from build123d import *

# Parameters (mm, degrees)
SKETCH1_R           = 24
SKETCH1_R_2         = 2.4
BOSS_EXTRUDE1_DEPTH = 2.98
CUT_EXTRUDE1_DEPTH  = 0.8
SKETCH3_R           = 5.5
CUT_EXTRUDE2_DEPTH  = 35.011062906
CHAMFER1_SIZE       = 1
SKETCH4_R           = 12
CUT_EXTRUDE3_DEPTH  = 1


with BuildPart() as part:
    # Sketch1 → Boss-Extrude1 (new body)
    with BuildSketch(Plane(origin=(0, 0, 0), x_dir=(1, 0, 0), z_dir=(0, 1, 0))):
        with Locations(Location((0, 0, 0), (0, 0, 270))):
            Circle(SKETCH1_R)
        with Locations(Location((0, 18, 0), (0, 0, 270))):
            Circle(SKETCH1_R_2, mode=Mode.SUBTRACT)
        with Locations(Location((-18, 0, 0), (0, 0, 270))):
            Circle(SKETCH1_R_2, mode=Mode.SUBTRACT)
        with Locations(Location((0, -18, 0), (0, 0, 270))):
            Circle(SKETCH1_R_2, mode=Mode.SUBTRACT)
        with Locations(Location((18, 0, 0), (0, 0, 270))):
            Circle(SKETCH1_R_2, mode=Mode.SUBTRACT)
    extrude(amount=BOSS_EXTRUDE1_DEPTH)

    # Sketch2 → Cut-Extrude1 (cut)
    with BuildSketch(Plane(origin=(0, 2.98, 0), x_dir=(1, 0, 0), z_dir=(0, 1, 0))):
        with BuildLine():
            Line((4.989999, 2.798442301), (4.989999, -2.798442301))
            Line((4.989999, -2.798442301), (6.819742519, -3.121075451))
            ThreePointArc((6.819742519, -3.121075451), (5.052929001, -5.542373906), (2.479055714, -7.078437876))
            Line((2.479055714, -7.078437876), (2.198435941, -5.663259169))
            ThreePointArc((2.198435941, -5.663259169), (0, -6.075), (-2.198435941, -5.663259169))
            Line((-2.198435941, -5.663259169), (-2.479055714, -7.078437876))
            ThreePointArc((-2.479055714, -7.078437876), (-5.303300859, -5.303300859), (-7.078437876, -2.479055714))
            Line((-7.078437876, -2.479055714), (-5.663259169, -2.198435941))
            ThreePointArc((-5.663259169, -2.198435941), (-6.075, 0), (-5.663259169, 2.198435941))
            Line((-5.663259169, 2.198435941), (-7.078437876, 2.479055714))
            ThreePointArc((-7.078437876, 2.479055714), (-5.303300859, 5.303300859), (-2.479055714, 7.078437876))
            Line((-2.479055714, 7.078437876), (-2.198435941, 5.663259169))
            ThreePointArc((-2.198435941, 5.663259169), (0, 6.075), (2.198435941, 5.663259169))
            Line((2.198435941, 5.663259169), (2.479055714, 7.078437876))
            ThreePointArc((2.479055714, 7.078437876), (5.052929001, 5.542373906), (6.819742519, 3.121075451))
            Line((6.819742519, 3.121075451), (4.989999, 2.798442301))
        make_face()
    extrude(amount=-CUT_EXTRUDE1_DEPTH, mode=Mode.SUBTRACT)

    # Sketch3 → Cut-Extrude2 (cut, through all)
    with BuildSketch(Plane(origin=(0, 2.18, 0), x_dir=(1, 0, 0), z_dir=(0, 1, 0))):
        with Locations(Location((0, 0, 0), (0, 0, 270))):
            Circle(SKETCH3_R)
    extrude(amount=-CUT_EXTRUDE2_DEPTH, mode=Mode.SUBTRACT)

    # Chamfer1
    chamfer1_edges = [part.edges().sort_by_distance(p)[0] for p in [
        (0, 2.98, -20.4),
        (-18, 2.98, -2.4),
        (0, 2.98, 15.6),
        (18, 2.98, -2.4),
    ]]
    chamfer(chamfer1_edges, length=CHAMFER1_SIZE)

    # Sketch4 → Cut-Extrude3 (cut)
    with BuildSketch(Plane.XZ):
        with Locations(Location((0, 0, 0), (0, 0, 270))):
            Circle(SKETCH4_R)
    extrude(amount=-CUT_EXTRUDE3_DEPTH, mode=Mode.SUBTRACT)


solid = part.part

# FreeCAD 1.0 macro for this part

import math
import FreeCAD as App
import Part
import Sketcher
Q = App.Units.Quantity


def edges_at(feature, points):
    """Names of the edges that pass closest to the given points."""
    edges = feature.Shape.Edges
    near = lambda p: min(range(len(edges)), key=lambda i: edges[i].distToShape(Part.Vertex(*p))[0])
    return sorted({f"Edge{near(p) + 1}" for p in points})

doc = App.newDocument("Part")
body = doc.addObject("PartDesign::Body", "Body")

sketch1 = body.newObject("Sketcher::SketchObject", "Sketch")
sketch1.AttachmentSupport = (doc.getObject("XZ_Plane"), [""])
sketch1.MapMode = "FlatFace"
sketch1.addGeometry([
    Part.Circle(App.Vector(0, 0, 0), App.Vector(0, 0, 1), 24),
    Part.Circle(App.Vector(0, -18, 0), App.Vector(0, 0, 1), 2.4),
    Part.Circle(App.Vector(-18, 0, 0), App.Vector(0, 0, 1), 2.4),
    Part.Circle(App.Vector(18, 0, 0), App.Vector(0, 0, 1), 2.4),
    Part.Circle(App.Vector(0, 18, 0), App.Vector(0, 0, 1), 2.4),
], False)
sketch1.addConstraint([
    Sketcher.Constraint("Coincident", 0, 3, -1, 1),
    Sketcher.Constraint("Equal", 1, 2),
    Sketcher.Constraint("Equal", 2, 3),
    Sketcher.Constraint("Equal", 3, 4),
    Sketcher.Constraint("Symmetric", 2, 3, 3, 3, -1, 1),
    Sketcher.Constraint("Symmetric", 1, 3, 4, 3, -1, 1),
    Sketcher.Constraint("PointOnObject", 1, 3, -2),
    Sketcher.Constraint("PointOnObject", 2, 3, -1),
    Sketcher.Constraint("Diameter", 0, 48.0),
    Sketcher.Constraint("Diameter", 1, 4.8),
    Sketcher.Constraint("DistanceY", 1, 3, -1, 1, 18.0),
    Sketcher.Constraint("DistanceX", 2, 3, -1, 1, 18.0),
])
pad1 = body.newObject("PartDesign::Pad", "Pad")
pad1.Profile = sketch1
pad1.Length = 2.98
pad1.Reversed = True

sketch2 = body.newObject("Sketcher::SketchObject", "Sketch001")
sketch2.AttachmentSupport = (doc.getObject("XZ_Plane"), [""])
sketch2.MapMode = "FlatFace"
sketch2.AttachmentOffset = App.Placement(App.Vector(0, 0, -2.98), App.Rotation())
sketch2.addGeometry([
    Part.LineSegment(App.Vector(4.989999, 2.798442, 0), App.Vector(4.989999, -2.798442, 0)),
    Part.LineSegment(App.Vector(4.989999, -2.798442, 0), App.Vector(6.819743, -3.121075, 0)),
    Part.ArcOfCircle(Part.Circle(App.Vector(0, 0, 0), App.Vector(0, 0, 1), 7.5), math.radians(-70.698399), math.radians(-24.591342)),
    Part.LineSegment(App.Vector(2.479056, -7.078438, 0), App.Vector(2.198436, -5.663259, 0)),
    Part.ArcOfCircle(Part.Circle(App.Vector(0, 0, 0), App.Vector(0, 0, 1), 6.075), math.radians(-111.215849), math.radians(-68.784151)),
    Part.LineSegment(App.Vector(-2.198436, -5.663259, 0), App.Vector(-2.479056, -7.078438, 0)),
    Part.ArcOfCircle(Part.Circle(App.Vector(0, 0, 0), App.Vector(0, 0, 1), 7.5), math.radians(-160.698399), math.radians(-109.301601)),
    Part.LineSegment(App.Vector(-7.078438, -2.479056, 0), App.Vector(-5.663259, -2.198436, 0)),
    Part.ArcOfCircle(Part.Circle(App.Vector(0, 0, 0), App.Vector(0, 0, 1), 6.075), math.radians(158.784151), math.radians(201.215849)),
    Part.LineSegment(App.Vector(-5.663259, 2.198436, 0), App.Vector(-7.078438, 2.479056, 0)),
    Part.ArcOfCircle(Part.Circle(App.Vector(0, 0, 0), App.Vector(0, 0, 1), 7.5), math.radians(109.301601), math.radians(160.698399)),
    Part.LineSegment(App.Vector(-2.479056, 7.078438, 0), App.Vector(-2.198436, 5.663259, 0)),
    Part.ArcOfCircle(Part.Circle(App.Vector(0, 0, 0), App.Vector(0, 0, 1), 6.075), math.radians(68.784151), math.radians(111.215849)),
    Part.LineSegment(App.Vector(2.198436, 5.663259, 0), App.Vector(2.479056, 7.078438, 0)),
    Part.ArcOfCircle(Part.Circle(App.Vector(0, 0, 0), App.Vector(0, 0, 1), 7.5), math.radians(24.591342), math.radians(70.698399)),
    Part.LineSegment(App.Vector(6.819743, 3.121075, 0), App.Vector(4.989999, 2.798442, 0)),
], False)
sketch2.addConstraint([
    Sketcher.Constraint("Coincident", 0, 2, 1, 1),
    Sketcher.Constraint("Coincident", 1, 2, 2, 2),
    Sketcher.Constraint("Coincident", 2, 1, 3, 1),
    Sketcher.Constraint("Coincident", 3, 2, 4, 2),
    Sketcher.Constraint("Coincident", 4, 1, 5, 1),
    Sketcher.Constraint("Coincident", 5, 2, 6, 2),
    Sketcher.Constraint("Coincident", 6, 1, 7, 1),
    Sketcher.Constraint("Coincident", 7, 2, 8, 2),
    Sketcher.Constraint("Coincident", 8, 1, 9, 1),
    Sketcher.Constraint("Coincident", 9, 2, 10, 2),
    Sketcher.Constraint("Coincident", 10, 1, 11, 1),
    Sketcher.Constraint("Coincident", 11, 2, 12, 2),
    Sketcher.Constraint("Coincident", 12, 1, 13, 1),
    Sketcher.Constraint("Coincident", 13, 2, 14, 2),
    Sketcher.Constraint("Coincident", 14, 1, 15, 1),
    Sketcher.Constraint("Coincident", 15, 2, 0, 1),
    Sketcher.Constraint("Vertical", 0),
    Sketcher.Constraint("Coincident", 2, 3, -1, 1),
    Sketcher.Constraint("Coincident", 4, 3, -1, 1),
    Sketcher.Constraint("Coincident", 6, 3, -1, 1),
    Sketcher.Constraint("Coincident", 8, 3, -1, 1),
    Sketcher.Constraint("Coincident", 10, 3, -1, 1),
    Sketcher.Constraint("Coincident", 12, 3, -1, 1),
    Sketcher.Constraint("Coincident", 14, 3, -1, 1),
    Sketcher.Constraint("Equal", 2, 6),
    Sketcher.Constraint("Equal", 4, 8),
    Sketcher.Constraint("Equal", 6, 10),
    Sketcher.Constraint("Equal", 8, 12),
    Sketcher.Constraint("Equal", 10, 14),
    Sketcher.Constraint("Perpendicular", 3, 7),
    Sketcher.Constraint("Perpendicular", 5, 9),
    Sketcher.Constraint("Perpendicular", 7, 11),
    Sketcher.Constraint("Perpendicular", 9, 13),
    Sketcher.Constraint("Horizontal", 3, 2, 4, 1),
    Sketcher.Constraint("Horizontal", 2, 1, 5, 2),
    Sketcher.Constraint("Horizontal", 11, 2, 12, 1),
    Sketcher.Constraint("Vertical", 7, 2, 8, 1),
    Sketcher.Constraint("Vertical", 5, 2, 10, 1),
    Sketcher.Constraint("Vertical", 1, 2, 14, 1),
    Sketcher.Constraint("Equal", 5, 7),
    Sketcher.Constraint("Equal", 1, 15),
    Sketcher.Constraint("Radius", 2, 7.5),
    Sketcher.Constraint("Angle", 1, Q("-10 deg")),
    Sketcher.Constraint("Radius", 4, 6.075),
    Sketcher.Constraint("DistanceX", -1, 1, 0, 2, 4.989999),
    Sketcher.Constraint("DistanceX", 6, 1, 4, 1, 4.880002),
    Sketcher.Constraint("Distance", 1, 1.85797),
    Sketcher.Constraint("DistanceY", 3, 2, -1, 1, 5.663259),
])
pocket1 = body.newObject("PartDesign::Pocket", "Pocket")
pocket1.Profile = sketch2
pocket1.Length = 0.8
pocket1.Reversed = True

sketch3 = body.newObject("Sketcher::SketchObject", "Sketch002")
sketch3.AttachmentSupport = (doc.getObject("XZ_Plane"), [""])
sketch3.MapMode = "FlatFace"
sketch3.AttachmentOffset = App.Placement(App.Vector(0, 0, -2.18), App.Rotation())
sketch3.addGeometry(Part.Circle(App.Vector(0, 0, 0), App.Vector(0, 0, 1), 6), False)
sketch3.addConstraint([
    Sketcher.Constraint("Coincident", 0, 3, -1, 1),
    Sketcher.Constraint("Diameter", 0, 11.0),
])
pocket2 = body.newObject("PartDesign::Pocket", "Pocket001")
pocket2.Profile = sketch3
pocket2.Type = "ThroughAll"
pocket2.Reversed = True
doc.recompute()

chamfer = body.newObject("PartDesign::Chamfer", "Chamfer")
chamfer.Base = (pocket2, edges_at(pocket2, [
    (0, 2.98, -20.4),
    (-18, 2.98, -2.4),
    (0, 2.98, 15.6),
    (18, 2.98, -2.4),
]))
chamfer.Size = 1

sketch4 = body.newObject("Sketcher::SketchObject", "Sketch003")
sketch4.AttachmentSupport = (doc.getObject("XZ_Plane"), [""])
sketch4.MapMode = "FlatFace"
sketch4.addGeometry(Part.Circle(App.Vector(0, 0, 0), App.Vector(0, 0, 1), 12), False)
sketch4.addConstraint([
    Sketcher.Constraint("Coincident", 0, 3, -1, 1),
    Sketcher.Constraint("Diameter", 0, 24.0),
])
pocket3 = body.newObject("PartDesign::Pocket", "Pocket002")
pocket3.Profile = sketch4
pocket3.Length = 1

doc.recompute()
